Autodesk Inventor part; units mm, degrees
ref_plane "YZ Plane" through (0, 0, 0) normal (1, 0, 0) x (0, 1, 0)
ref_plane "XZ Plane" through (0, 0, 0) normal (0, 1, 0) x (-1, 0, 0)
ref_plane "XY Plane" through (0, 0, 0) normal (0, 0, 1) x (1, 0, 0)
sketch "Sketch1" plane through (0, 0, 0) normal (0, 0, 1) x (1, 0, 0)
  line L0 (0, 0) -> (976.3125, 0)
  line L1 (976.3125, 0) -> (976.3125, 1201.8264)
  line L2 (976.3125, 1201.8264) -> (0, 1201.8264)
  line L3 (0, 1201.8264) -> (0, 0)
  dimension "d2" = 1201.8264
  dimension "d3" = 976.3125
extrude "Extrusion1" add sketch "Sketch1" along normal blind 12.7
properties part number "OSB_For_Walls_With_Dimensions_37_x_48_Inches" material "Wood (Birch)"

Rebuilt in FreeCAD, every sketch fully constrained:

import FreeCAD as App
import Part
import Sketcher

V = App.Vector
Q = App.Units.Quantity

doc = App.newDocument("Part")
body = doc.addObject("PartDesign::Body", "Body")

# Sketch on XY plane
sketch1 = doc.addObject("Sketcher::SketchObject", "Sketch")
body.addObject(sketch1)
sketch1.AttachmentSupport = (doc.XY_Plane, [""])
sketch1.MapMode = "FlatFace"
sketch1.addGeometry([
    Part.LineSegment(V(0, 1202, 0), V(0, 0, 0)),
    Part.LineSegment(V(0, 0, 0), V(976, 0, 0)),
    Part.LineSegment(V(976, 0, 0), V(976, 1202, 0)),
    Part.LineSegment(V(976, 1202, 0), V(0, 1202, 0)),
], False)
sketch1.addConstraint([
    Sketcher.Constraint("Coincident", 0, 2, 1, 1),
    Sketcher.Constraint("Coincident", 1, 2, 2, 1),
    Sketcher.Constraint("Coincident", 2, 2, 3, 1),
    Sketcher.Constraint("Coincident", 3, 2, 0, 1),
    Sketcher.Constraint("Vertical", 0),
    Sketcher.Constraint("Horizontal", 1),
    Sketcher.Constraint("Vertical", 2),
    Sketcher.Constraint("Horizontal", 3),
    Sketcher.Constraint("Coincident", 0, 2, -1, 1),
    Sketcher.Constraint("DistanceX", 1, 1, 1, 2, Q("38.4375 in")),
    Sketcher.Constraint("DistanceY", 0, 2, 0, 1, Q("47.316 in")),
])
pad1 = doc.addObject("PartDesign::Pad", "Pad")
body.addObject(pad1)
pad1.Profile = sketch1
pad1.Length = Q("0.5 in")

doc.recompute()
